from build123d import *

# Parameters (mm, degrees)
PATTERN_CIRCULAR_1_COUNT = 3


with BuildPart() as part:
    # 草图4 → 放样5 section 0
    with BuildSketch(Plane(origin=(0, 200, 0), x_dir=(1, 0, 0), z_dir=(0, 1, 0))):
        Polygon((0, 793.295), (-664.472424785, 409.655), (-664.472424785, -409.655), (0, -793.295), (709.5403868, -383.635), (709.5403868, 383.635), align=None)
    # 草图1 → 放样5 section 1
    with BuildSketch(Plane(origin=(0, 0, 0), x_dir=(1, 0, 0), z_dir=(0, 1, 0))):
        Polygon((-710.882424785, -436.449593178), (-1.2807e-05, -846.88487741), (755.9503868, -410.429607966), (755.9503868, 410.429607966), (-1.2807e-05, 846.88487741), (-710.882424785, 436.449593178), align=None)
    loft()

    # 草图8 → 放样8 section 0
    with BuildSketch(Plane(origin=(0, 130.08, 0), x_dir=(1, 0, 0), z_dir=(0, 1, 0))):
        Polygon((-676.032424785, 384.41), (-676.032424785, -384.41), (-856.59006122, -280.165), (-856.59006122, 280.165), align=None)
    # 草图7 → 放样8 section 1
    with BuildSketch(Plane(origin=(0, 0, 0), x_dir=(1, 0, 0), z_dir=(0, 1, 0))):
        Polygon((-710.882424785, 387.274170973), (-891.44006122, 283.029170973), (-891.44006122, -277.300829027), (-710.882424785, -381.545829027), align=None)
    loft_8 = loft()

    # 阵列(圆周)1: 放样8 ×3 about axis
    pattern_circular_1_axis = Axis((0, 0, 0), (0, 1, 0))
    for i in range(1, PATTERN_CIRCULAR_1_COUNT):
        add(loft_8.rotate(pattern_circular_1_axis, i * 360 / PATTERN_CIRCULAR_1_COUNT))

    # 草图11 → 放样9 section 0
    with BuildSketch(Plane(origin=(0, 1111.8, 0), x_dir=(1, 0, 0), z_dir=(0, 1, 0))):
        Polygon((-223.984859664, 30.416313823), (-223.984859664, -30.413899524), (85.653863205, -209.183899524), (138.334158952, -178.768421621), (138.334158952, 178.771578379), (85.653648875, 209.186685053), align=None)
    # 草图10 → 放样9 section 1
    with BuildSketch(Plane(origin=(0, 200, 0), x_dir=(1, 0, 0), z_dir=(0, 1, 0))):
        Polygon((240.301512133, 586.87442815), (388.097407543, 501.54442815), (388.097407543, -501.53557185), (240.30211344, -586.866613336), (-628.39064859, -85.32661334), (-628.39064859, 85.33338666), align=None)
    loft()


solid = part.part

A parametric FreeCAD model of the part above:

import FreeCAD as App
import Part
import Sketcher
Q = App.Units.Quantity


def add_polygon(sketch, points):
    """Adds a closed chain of lines whose ends are joined by coincident constraints."""
    first, n = sketch.GeometryCount, len(points)
    for a, b in zip(points, points[1:] + points[:1]):
        sketch.addGeometry(Part.LineSegment(App.Vector(*a, 0), App.Vector(*b, 0)), False)
    for i in range(n):
        sketch.addConstraint(Sketcher.Constraint("Coincident", first + i, 2, first + (i + 1) % n, 1))

doc = App.newDocument("Part")
params = doc.addObject("Spreadsheet::Sheet", "Params")
for row, (alias, value) in enumerate([
    ("sketch1_height", "819.31 mm"),
    ("sketch1_height2", "767.27 mm"),
    ("sketch1_length", "767.27 mm"),
    ("sketch1_length2", "767.27 mm"),
    ("sketch1_length3", "819.31 mm"),
    ("sketch3_height", "768.82 mm"),
    ("sketch3_height2", "560.33 mm"),
    ("sketch4_height", "560.33 mm"),
    ("sketch4_height2", "768.82 mm"),
    ("sketch5_height", "357.54 mm"),
    ("sketch5_length", "357.54 mm"),
    ("sketch6_height", "170.66 mm"),
    ("sketch6_height2", "1003.08 mm"),
], start=1):
    params.set(f"A{row}", alias)
    params.set(f"B{row}", "=" + value)
    params.setAlias(f"B{row}", alias)

body = doc.addObject("PartDesign::Body", "Body")

sketch1 = body.newObject("Sketcher::SketchObject", "Sketch")
sketch1.AttachmentSupport = (doc.getObject("XZ_Plane"), [""])
sketch1.MapMode = "FlatFace"
sketch1.AttachmentOffset = App.Placement(App.Vector(0, 0, -200), App.Rotation())
add_polygon(sketch1, [(0, -793.295), (-664.472425, -409.655), (-664.472425, 409.655), (0, 793.295), (709.540387, 383.635), (709.540387, -383.635)])
sketch1.addConstraint([
    Sketcher.Constraint("Vertical", 1),
    Sketcher.Constraint("Vertical", 4),
    Sketcher.Constraint("PointOnObject", 2, 2, -2),
    Sketcher.Constraint("PointOnObject", 5, 2, -2),
    Sketcher.Constraint("DistanceY", 1, 1, 1, 2, Q("819.31 mm")),
    Sketcher.Constraint("DistanceY", 4, 2, 4, 1, Q("767.27 mm")),
    Sketcher.Constraint("Distance", 0, Q("767.27 mm")),
    Sketcher.Constraint("Distance", 2, Q("767.27 mm")),
    Sketcher.Constraint("Distance", 3, Q("819.31 mm")),
    Sketcher.Constraint("Distance", 5, Q("819.31 mm")),
    Sketcher.Constraint("DistanceY", 1, 2, 2, 2, Q("383.64 mm")),
    Sketcher.Constraint("DistanceY", 0, 2, -1, 1, Q("409.655 mm")),
])
sketch1.setExpression("Constraints[10]", "Params.sketch1_height")
sketch1.setExpression("Constraints[11]", "Params.sketch1_height2")
sketch1.setExpression("Constraints[12]", "Params.sketch1_length")
sketch1.setExpression("Constraints[13]", "Params.sketch1_length2")
sketch1.setExpression("Constraints[14]", "Params.sketch1_length3")

sketch2 = body.newObject("Sketcher::SketchObject", "Sketch001")
sketch2.AttachmentSupport = (doc.getObject("XZ_Plane"), [""])
sketch2.MapMode = "FlatFace"
add_polygon(sketch2, [(-710.882425, 436.449593), (-0.000013, 846.884877), (755.950387, 410.429608), (755.950387, -410.429608), (-0.000013, -846.884877), (-710.882425, -436.449593)])
sketch2.addConstraint([
    Sketcher.Constraint("Vertical", 2),
    Sketcher.Constraint("Vertical", 5),
    Sketcher.Constraint("DistanceX", 0, 2, 1, 2, Q("755.9504 mm")),
    Sketcher.Constraint("DistanceX", 3, 2, 2, 2, Q("755.9504 mm")),
    Sketcher.Constraint("DistanceY", 4, 2, 1, 2, Q("846.879201 mm")),
    Sketcher.Constraint("DistanceY", 2, 2, 5, 2, Q("846.879201 mm")),
    Sketcher.Constraint("Distance", 0, Q("820.85987 mm")),
    Sketcher.Constraint("Distance", 4, Q("820.85987 mm")),
    Sketcher.Constraint("DistanceY", 2, 2, 2, 1, Q("820.859216 mm")),
    Sketcher.Constraint("DistanceY", 1, 2, 0, 2, Q("436.455269 mm")),
    Sketcher.Constraint("DistanceY", -1, 1, 0, 2, Q("846.884877 mm")),
    Sketcher.Constraint("DistanceX", -1, 1, 1, 2, Q("755.950387 mm")),
])

additiveloft = body.newObject("PartDesign::AdditiveLoft", "AdditiveLoft")
additiveloft.Profile = sketch1
additiveloft.Sections = [sketch2]

sketch3 = body.newObject("Sketcher::SketchObject", "Sketch002")
sketch3.AttachmentSupport = (doc.getObject("XZ_Plane"), [""])
sketch3.MapMode = "FlatFace"
sketch3.AttachmentOffset = App.Placement(App.Vector(0, 0, -130.08), App.Rotation())
add_polygon(sketch3, [(-676.032425, 384.41), (-676.032425, -384.41), (-856.590061, -280.165), (-856.590061, 280.165)])
sketch3.addConstraint([
    Sketcher.Constraint("Vertical", 0),
    Sketcher.Constraint("Vertical", 2),
    Sketcher.Constraint("Equal", 1, 3),
    Sketcher.Constraint("Angle", 1, Q("150 deg")),
    Sketcher.Constraint("DistanceY", 0, 2, 0, 1, Q("768.82 mm")),
    Sketcher.Constraint("DistanceY", 2, 1, 2, 2, Q("560.33 mm")),
    Sketcher.Constraint("DistanceY", 0, 2, -1, 1, Q("384.41 mm")),
    Sketcher.Constraint("DistanceX", 1, 2, -1, 1, Q("856.590061 mm")),
])
sketch3.setExpression("Constraints[8]", "Params.sketch3_height")
sketch3.setExpression("Constraints[9]", "Params.sketch3_height2")

sketch4 = body.newObject("Sketcher::SketchObject", "Sketch003")
sketch4.AttachmentSupport = (doc.getObject("XZ_Plane"), [""])
sketch4.MapMode = "FlatFace"
add_polygon(sketch4, [(-710.882425, -387.274171), (-891.440061, -283.029171), (-891.440061, 277.300829), (-710.882425, 381.545829)])
sketch4.addConstraint([
    Sketcher.Constraint("Vertical", 1),
    Sketcher.Constraint("Vertical", 3),
    Sketcher.Constraint("Equal", 0, 2),
    Sketcher.Constraint("Angle", 0, Q("150 deg")),
    Sketcher.Constraint("DistanceY", 1, 1, 1, 2, Q("560.33 mm")),
    Sketcher.Constraint("DistanceY", 3, 2, 3, 1, Q("768.82 mm")),
    Sketcher.Constraint("DistanceX", 0, 2, -1, 1, Q("891.440061 mm")),
    Sketcher.Constraint("DistanceY", 0, 2, -1, 1, Q("283.029171 mm")),
])
sketch4.setExpression("Constraints[8]", "Params.sketch4_height")
sketch4.setExpression("Constraints[9]", "Params.sketch4_height2")

additiveloft2 = body.newObject("PartDesign::AdditiveLoft", "AdditiveLoft001")
additiveloft2.Profile = sketch3
additiveloft2.Sections = [sketch4]
doc.recompute()

polarpattern = body.newObject("PartDesign::PolarPattern", "PolarPattern")
polarpattern.Originals = [additiveloft2]
polarpattern.Axis = (doc.getObject("Y_Axis"), [""])
polarpattern.Angle = 360
polarpattern.Occurrences = 3
body.Tip = polarpattern

sketch5 = body.newObject("Sketcher::SketchObject", "Sketch004")
sketch5.AttachmentSupport = (doc.getObject("XZ_Plane"), [""])
sketch5.MapMode = "FlatFace"
sketch5.AttachmentOffset = App.Placement(App.Vector(0, 0, -1111.8), App.Rotation())
add_polygon(sketch5, [(-223.98486, -30.416314), (-223.98486, 30.4139), (85.653863, 209.1839), (138.334159, 178.768422), (138.334159, -178.771578), (85.653649, -209.186685)])
sketch5.addConstraint([
    Sketcher.Constraint("Vertical", 0),
    Sketcher.Constraint("Vertical", 3),
    Sketcher.Constraint("Parallel", 1, 4),
    Sketcher.Constraint("Equal", 2, 4),
    Sketcher.Constraint("Equal", 1, 5),
    Sketcher.Constraint("Angle", 1, Q("30 deg")),
    Sketcher.Constraint("DistanceY", 3, 2, 3, 1, Q("357.54 mm")),
    Sketcher.Constraint("Distance", 1, Q("357.54 mm")),
    Sketcher.Constraint("DistanceY", -1, 1, 0, 2, Q("30.4139 mm")),
    Sketcher.Constraint("DistanceY", 0, 1, 0, 2, Q("60.830213 mm")),
    Sketcher.Constraint("DistanceX", 0, 2, -1, 1, Q("223.98486 mm")),
    Sketcher.Constraint("DistanceX", -1, 1, 2, 2, Q("138.334159 mm")),
])
sketch5.setExpression("Constraints[12]", "Params.sketch5_height")
sketch5.setExpression("Constraints[13]", "Params.sketch5_length")

sketch6 = body.newObject("Sketcher::SketchObject", "Sketch005")
sketch6.AttachmentSupport = (doc.getObject("XZ_Plane"), [""])
sketch6.MapMode = "FlatFace"
sketch6.AttachmentOffset = App.Placement(App.Vector(0, 0, -200), App.Rotation())
add_polygon(sketch6, [(388.097408, -501.544428), (240.301512, -586.874428), (-628.390649, -85.333387), (-628.390649, 85.326613), (240.302113, 586.866613), (388.097408, 501.535572)])
sketch6.addConstraint([
    Sketcher.Constraint("Vertical", 2),
    Sketcher.Constraint("Vertical", 5),
    Sketcher.Constraint("Parallel", 0, 3),
    Sketcher.Constraint("Equal", 1, 3),
    Sketcher.Constraint("Equal", 0, 4),
    Sketcher.Constraint("Angle", 0, Q("-150 deg")),
    Sketcher.Constraint("DistanceY", 2, 1, 2, 2, Q("170.66 mm")),
    Sketcher.Constraint("DistanceY", 5, 2, 5, 1, Q("1003.08 mm")),
    Sketcher.Constraint("DistanceY", 1, 2, 3, 2, Q("672.2 mm")),
    Sketcher.Constraint("DistanceX", 0, 2, 3, 2, Q("0.000601 mm")),
    Sketcher.Constraint("DistanceY", 0, 2, -1, 1, Q("586.874428 mm")),
    Sketcher.Constraint("DistanceX", 1, 2, -1, 1, Q("628.390649 mm")),
])
sketch6.setExpression("Constraints[12]", "Params.sketch6_height")
sketch6.setExpression("Constraints[13]", "Params.sketch6_height2")

additiveloft3 = body.newObject("PartDesign::AdditiveLoft", "AdditiveLoft002")
additiveloft3.Profile = sketch5
additiveloft3.Sections = [sketch6]

doc.recompute()
